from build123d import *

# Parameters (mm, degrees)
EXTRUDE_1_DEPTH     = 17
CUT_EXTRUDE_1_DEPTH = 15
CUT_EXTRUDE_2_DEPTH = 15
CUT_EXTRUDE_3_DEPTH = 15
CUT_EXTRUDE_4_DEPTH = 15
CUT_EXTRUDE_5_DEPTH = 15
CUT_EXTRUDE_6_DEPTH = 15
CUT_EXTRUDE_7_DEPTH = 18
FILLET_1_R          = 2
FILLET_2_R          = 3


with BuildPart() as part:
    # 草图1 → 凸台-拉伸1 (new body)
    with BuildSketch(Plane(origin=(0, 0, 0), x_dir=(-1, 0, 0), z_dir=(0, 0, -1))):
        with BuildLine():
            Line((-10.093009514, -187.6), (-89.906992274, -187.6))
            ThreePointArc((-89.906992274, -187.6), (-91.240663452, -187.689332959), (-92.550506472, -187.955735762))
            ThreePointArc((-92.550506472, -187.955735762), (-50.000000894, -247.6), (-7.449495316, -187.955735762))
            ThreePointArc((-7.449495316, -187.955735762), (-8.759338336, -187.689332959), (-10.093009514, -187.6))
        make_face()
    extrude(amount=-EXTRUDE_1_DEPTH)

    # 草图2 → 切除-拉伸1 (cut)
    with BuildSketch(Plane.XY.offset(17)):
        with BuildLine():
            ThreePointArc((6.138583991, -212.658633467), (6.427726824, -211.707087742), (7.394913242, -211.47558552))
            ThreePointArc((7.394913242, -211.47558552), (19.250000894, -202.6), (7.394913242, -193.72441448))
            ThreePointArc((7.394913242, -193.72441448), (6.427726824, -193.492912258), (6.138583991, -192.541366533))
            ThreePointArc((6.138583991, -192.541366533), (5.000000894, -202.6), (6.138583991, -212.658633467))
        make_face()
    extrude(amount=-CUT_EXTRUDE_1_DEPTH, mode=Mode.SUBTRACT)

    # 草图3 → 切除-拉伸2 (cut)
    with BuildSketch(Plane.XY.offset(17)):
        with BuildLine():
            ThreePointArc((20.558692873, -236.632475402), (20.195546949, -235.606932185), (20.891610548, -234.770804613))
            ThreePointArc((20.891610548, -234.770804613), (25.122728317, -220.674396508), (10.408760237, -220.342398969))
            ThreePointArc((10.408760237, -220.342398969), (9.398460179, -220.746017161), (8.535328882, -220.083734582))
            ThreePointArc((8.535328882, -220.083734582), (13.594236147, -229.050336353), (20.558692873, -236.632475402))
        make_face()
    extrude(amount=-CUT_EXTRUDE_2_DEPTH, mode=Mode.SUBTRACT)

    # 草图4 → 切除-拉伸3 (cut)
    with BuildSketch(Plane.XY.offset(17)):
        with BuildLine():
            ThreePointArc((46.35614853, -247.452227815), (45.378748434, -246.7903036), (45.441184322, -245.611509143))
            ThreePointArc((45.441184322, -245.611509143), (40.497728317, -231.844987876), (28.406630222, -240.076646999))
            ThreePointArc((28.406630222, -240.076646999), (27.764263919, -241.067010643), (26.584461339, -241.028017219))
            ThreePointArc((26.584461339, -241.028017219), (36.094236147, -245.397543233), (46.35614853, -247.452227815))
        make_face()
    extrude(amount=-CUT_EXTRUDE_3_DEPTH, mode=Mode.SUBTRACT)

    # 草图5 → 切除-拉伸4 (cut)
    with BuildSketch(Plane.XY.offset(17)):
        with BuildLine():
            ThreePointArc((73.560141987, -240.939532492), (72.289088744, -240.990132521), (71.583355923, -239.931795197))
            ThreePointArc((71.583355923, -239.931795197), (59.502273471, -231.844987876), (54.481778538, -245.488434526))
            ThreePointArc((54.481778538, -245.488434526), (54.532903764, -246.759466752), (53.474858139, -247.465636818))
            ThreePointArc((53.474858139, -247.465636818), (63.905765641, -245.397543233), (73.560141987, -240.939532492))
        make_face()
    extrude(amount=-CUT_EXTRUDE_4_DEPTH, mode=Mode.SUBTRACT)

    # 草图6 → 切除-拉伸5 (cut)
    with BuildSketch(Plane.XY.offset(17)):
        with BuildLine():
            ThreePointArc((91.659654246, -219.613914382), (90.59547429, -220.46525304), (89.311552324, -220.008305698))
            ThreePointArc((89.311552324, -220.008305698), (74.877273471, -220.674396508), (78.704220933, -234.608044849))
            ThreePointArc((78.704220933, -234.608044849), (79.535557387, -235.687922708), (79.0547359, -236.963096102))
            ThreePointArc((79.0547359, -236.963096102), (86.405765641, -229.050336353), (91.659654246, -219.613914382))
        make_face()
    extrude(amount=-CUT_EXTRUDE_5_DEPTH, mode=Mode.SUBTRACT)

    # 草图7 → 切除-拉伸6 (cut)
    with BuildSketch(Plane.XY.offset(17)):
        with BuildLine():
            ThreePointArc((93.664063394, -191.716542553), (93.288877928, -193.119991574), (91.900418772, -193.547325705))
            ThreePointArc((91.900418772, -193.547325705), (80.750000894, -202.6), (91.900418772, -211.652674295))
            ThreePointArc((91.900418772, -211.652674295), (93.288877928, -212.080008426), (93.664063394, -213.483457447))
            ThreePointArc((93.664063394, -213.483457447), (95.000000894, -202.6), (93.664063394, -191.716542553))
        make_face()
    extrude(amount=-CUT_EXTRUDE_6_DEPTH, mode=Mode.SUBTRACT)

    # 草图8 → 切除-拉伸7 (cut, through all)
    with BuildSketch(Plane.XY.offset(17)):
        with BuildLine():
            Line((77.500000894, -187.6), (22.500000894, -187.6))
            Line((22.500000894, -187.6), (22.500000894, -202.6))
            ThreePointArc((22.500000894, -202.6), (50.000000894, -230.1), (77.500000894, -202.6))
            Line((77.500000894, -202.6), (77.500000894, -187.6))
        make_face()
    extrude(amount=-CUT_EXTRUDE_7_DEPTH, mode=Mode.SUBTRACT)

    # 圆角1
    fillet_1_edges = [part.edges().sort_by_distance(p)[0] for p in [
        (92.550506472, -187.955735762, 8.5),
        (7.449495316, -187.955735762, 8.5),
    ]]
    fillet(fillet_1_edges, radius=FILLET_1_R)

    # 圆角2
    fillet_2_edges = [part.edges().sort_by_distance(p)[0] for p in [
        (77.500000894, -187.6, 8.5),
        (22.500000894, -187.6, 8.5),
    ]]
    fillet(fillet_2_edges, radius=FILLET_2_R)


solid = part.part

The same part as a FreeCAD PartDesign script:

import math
import FreeCAD as App
import Part
import Sketcher
from FreeCAD import Vector
Q = App.Units.Quantity


def edges_at(feature, points):
    """Names of the edges that pass closest to the given points."""
    edges = feature.Shape.Edges
    near = lambda p: min(range(len(edges)), key=lambda i: edges[i].distToShape(Part.Vertex(*p))[0])
    return sorted({f"Edge{near(p) + 1}" for p in points})

doc = App.newDocument("Part")
body = doc.addObject("PartDesign::Body", "Body")

sketch1 = body.newObject("Sketcher::SketchObject", "Sketch")
sketch1.AttachmentSupport = (doc.getObject("XY_Plane"), [""])
sketch1.MapMode = "FlatFace"
sketch1.addGeometry(Part.LineSegment(Vector(10.09301, -187.6, 0), Vector(89.906992, -187.6, 0)), False)
sketch1.addGeometry(Part.ArcOfCircle(Part.Circle(Vector(89.906992, -197.6, 0), Vector(0, 0, 1), 10), math.radians(74.671582), math.radians(90)), False)
sketch1.addGeometry(Part.ArcOfCircle(Part.Circle(Vector(50.000001, -202.6, 0), Vector(0, 0, 1), 45), math.radians(161.008487), math.radians(378.991513)), False)
sketch1.addGeometry(Part.ArcOfCircle(Part.Circle(Vector(10.09301, -197.6, 0), Vector(0, 0, 1), 10), math.radians(90), math.radians(105.328418)), False)
sketch1.addConstraint(Sketcher.Constraint("Tangent", 0, 2, 1, 2))
sketch1.addConstraint(Sketcher.Constraint("Coincident", 1, 1, 2, 2))
sketch1.addConstraint(Sketcher.Constraint("Coincident", 2, 1, 3, 2))
sketch1.addConstraint(Sketcher.Constraint("Tangent", 3, 1, 0, 1))
sketch1.addConstraint(Sketcher.Constraint("Horizontal", 0))
sketch1.addConstraint(Sketcher.Constraint("Equal", 1, 3))
sketch1.addConstraint(Sketcher.Constraint("Horizontal", 1, 1, 2, 1))
sketch1.addConstraint(Sketcher.Constraint("Radius", 1, Q("10 mm")))
sketch1.addConstraint(Sketcher.Constraint("Radius", 2, Q("45 mm")))
sketch1.addConstraint(Sketcher.Constraint("DistanceX", -1, 1, 2, 3, Q("50.000001 mm")))
sketch1.addConstraint(Sketcher.Constraint("DistanceY", 2, 3, 1, 3, Q("5 mm")))
sketch1.addConstraint(Sketcher.Constraint("DistanceY", 1, 3, -1, 1, Q("197.6 mm")))
sketch1.addConstraint(Sketcher.Constraint("DistanceX", 0, 1, 0, 2, Q("79.813983 mm")))
pad1 = body.newObject("PartDesign::Pad", "Pad")
pad1.Profile = sketch1
pad1.Length = 17

sketch2 = body.newObject("Sketcher::SketchObject", "Sketch001")
sketch2.AttachmentSupport = (doc.getObject("XY_Plane"), [""])
sketch2.MapMode = "FlatFace"
sketch2.AttachmentOffset = App.Placement(Vector(0, 0, 17), App.Rotation())
sketch2.addGeometry(Part.ArcOfCircle(Part.Circle(Vector(7.113282, -212.435108, 0), Vector(0, 0, 1), 1), math.radians(73.642422), math.radians(192.916169)), False)
sketch2.addGeometry(Part.ArcOfCircle(Part.Circle(Vector(10.000001, -202.6, 0), Vector(0, 0, 1), 9.25), math.radians(-106.357578), math.radians(106.357578)), False)
sketch2.addGeometry(Part.ArcOfCircle(Part.Circle(Vector(7.113282, -192.764892, 0), Vector(0, 0, 1), 1), math.radians(167.083831), math.radians(286.357578)), False)
sketch2.addGeometry(Part.ArcOfCircle(Part.Circle(Vector(50.000001, -202.6, 0), Vector(0, 0, 1), 45), math.radians(167.083831), math.radians(192.916169)), False)
sketch2.addConstraint(Sketcher.Constraint("Tangent", 0, 1, 1, 1))
sketch2.addConstraint(Sketcher.Constraint("Tangent", 1, 2, 2, 2))
sketch2.addConstraint(Sketcher.Constraint("Tangent", 2, 1, 3, 1))
sketch2.addConstraint(Sketcher.Constraint("Tangent", 3, 2, 0, 2))
sketch2.addConstraint(Sketcher.Constraint("Equal", 0, 2))
sketch2.addConstraint(Sketcher.Constraint("Horizontal", 1, 3, 3, 3))
sketch2.addConstraint(Sketcher.Constraint("Radius", 0, Q("1 mm")))
sketch2.addConstraint(Sketcher.Constraint("Radius", 3, Q("45 mm")))
sketch2.addConstraint(Sketcher.Constraint("Radius", 1, Q("9.25 mm")))
sketch2.addConstraint(Sketcher.Constraint("DistanceX", -1, 1, 1, 3, Q("10.000001 mm")))
sketch2.addConstraint(Sketcher.Constraint("DistanceX", -1, 1, 3, 3, Q("50.000001 mm")))
sketch2.addConstraint(Sketcher.Constraint("DistanceY", 1, 3, -1, 1, Q("202.6 mm")))
pocket1 = body.newObject("PartDesign::Pocket", "Pocket")
pocket1.Profile = sketch2
pocket1.Length = 15

sketch3 = body.newObject("Sketcher::SketchObject", "Sketch002")
sketch3.AttachmentSupport = (doc.getObject("XY_Plane"), [""])
sketch3.MapMode = "FlatFace"
sketch3.AttachmentOffset = App.Placement(Vector(0, 0, 17), App.Rotation())
sketch3.addGeometry(Part.ArcOfCircle(Part.Circle(Vector(21.278369, -235.80057, 0), Vector(0, 0, 1), 1.1), math.radians(110.58514), math.radians(229.137097)), False)
sketch3.addGeometry(Part.ArcOfCircle(Part.Circle(Vector(17.639321, -226.11141, 0), Vector(0, 0, 1), 9.25), math.radians(-69.41486), math.radians(141.41486)), False)
sketch3.addGeometry(Part.ArcOfCircle(Part.Circle(Vector(9.54891, -219.656354, 0), Vector(0, 0, 1), 1.1), math.radians(-157.137097), math.radians(-38.58514)), False)
sketch3.addGeometry(Part.ArcOfCircle(Part.Circle(Vector(50.000001, -202.6, 0), Vector(0, 0, 1), 45), math.radians(-157.137097), math.radians(-130.862903)), False)
sketch3.addConstraint(Sketcher.Constraint("Tangent", 0, 1, 1, 1))
sketch3.addConstraint(Sketcher.Constraint("Tangent", 1, 2, 2, 2))
sketch3.addConstraint(Sketcher.Constraint("Tangent", 2, 1, 3, 1))
sketch3.addConstraint(Sketcher.Constraint("Tangent", 3, 2, 0, 2))
sketch3.addConstraint(Sketcher.Constraint("Equal", 0, 2))
sketch3.addConstraint(Sketcher.Constraint("Radius", 3, Q("45 mm")))
sketch3.addConstraint(Sketcher.Constraint("Radius", 0, Q("1.1 mm")))
sketch3.addConstraint(Sketcher.Constraint("Radius", 1, Q("9.25 mm")))
sketch3.addConstraint(Sketcher.Constraint("DistanceX", -1, 1, 3, 3, Q("50.000001 mm")))
sketch3.addConstraint(Sketcher.Constraint("DistanceY", 3, 3, -1, 1, Q("202.6 mm")))
sketch3.addConstraint(Sketcher.Constraint("DistanceY", 1, 2, -1, 1, Q("220.342399 mm")))
sketch3.addConstraint(Sketcher.Constraint("DistanceX", 2, 3, 0, 1, Q("11.342701 mm")))
pocket2 = body.newObject("PartDesign::Pocket", "Pocket001")
pocket2.Profile = sketch3
pocket2.Length = 15

sketch4 = body.newObject("Sketcher::SketchObject", "Sketch003")
sketch4.AttachmentSupport = (doc.getObject("XY_Plane"), [""])
sketch4.MapMode = "FlatFace"
sketch4.AttachmentOffset = App.Placement(Vector(0, 0, 17), App.Rotation())
sketch4.addGeometry(Part.ArcOfCircle(Part.Circle(Vector(46.453318, -246.256168, 0), Vector(0, 0, 1), 1.2), math.radians(147.505676), math.radians(265.355418)), False)
sketch4.addGeometry(Part.ArcOfCircle(Part.Circle(Vector(37.639321, -240.642261, 0), Vector(0, 0, 1), 9.25), math.radians(-32.494324), math.radians(176.494324)), False)
sketch4.addGeometry(Part.ArcOfCircle(Part.Circle(Vector(27.208876, -240.00327, 0), Vector(0, 0, 1), 1.2), math.radians(-121.355418), math.radians(-3.505676)), False)
sketch4.addGeometry(Part.ArcOfCircle(Part.Circle(Vector(50.000001, -202.6, 0), Vector(0, 0, 1), 45), math.radians(-121.355418), math.radians(-94.644582)), False)
sketch4.addConstraint(Sketcher.Constraint("Tangent", 0, 1, 1, 1))
sketch4.addConstraint(Sketcher.Constraint("Tangent", 1, 2, 2, 2))
sketch4.addConstraint(Sketcher.Constraint("Tangent", 2, 1, 3, 1))
sketch4.addConstraint(Sketcher.Constraint("Tangent", 3, 2, 0, 2))
sketch4.addConstraint(Sketcher.Constraint("Equal", 0, 2))
sketch4.addConstraint(Sketcher.Constraint("Radius", 3, Q("45 mm")))
sketch4.addConstraint(Sketcher.Constraint("Radius", 0, Q("1.2 mm")))
sketch4.addConstraint(Sketcher.Constraint("Radius", 1, Q("9.25 mm")))
sketch4.addConstraint(Sketcher.Constraint("DistanceX", -1, 1, 3, 3, Q("50.000001 mm")))
sketch4.addConstraint(Sketcher.Constraint("DistanceY", 3, 3, -1, 1, Q("202.6 mm")))
sketch4.addConstraint(Sketcher.Constraint("DistanceY", 0, 3, 2, 3, Q("6.252898 mm")))
sketch4.addConstraint(Sketcher.Constraint("DistanceY", 0, 3, -1, 1, Q("246.256168 mm")))
pocket3 = body.newObject("PartDesign::Pocket", "Pocket002")
pocket3.Profile = sketch4
pocket3.Length = 15

sketch5 = body.newObject("Sketcher::SketchObject", "Sketch004")
sketch5.AttachmentSupport = (doc.getObject("XY_Plane"), [""])
sketch5.MapMode = "FlatFace"
sketch5.AttachmentOffset = App.Placement(Vector(0, 0, 17), App.Rotation())
sketch5.addGeometry(Part.ArcOfCircle(Part.Circle(Vector(72.879516, -239.831946, 0), Vector(0, 0, 1), 1.3), math.radians(-175.59494), math.radians(-58.428734)), False)
sketch5.addGeometry(Part.ArcOfCircle(Part.Circle(Vector(62.360681, -240.642261, 0), Vector(0, 0, 1), 9.25), math.radians(4.40506), math.radians(211.59494)), False)
sketch5.addGeometry(Part.ArcOfCircle(Part.Circle(Vector(53.374473, -246.169518, 0), Vector(0, 0, 1), 1.3), math.radians(-85.571266), math.radians(31.59494)), False)
sketch5.addGeometry(Part.ArcOfCircle(Part.Circle(Vector(50.000001, -202.6, 0), Vector(0, 0, 1), 45), math.radians(-85.571266), math.radians(-58.428734)), False)
sketch5.addConstraint(Sketcher.Constraint("Tangent", 0, 1, 1, 1))
sketch5.addConstraint(Sketcher.Constraint("Tangent", 1, 2, 2, 2))
sketch5.addConstraint(Sketcher.Constraint("Tangent", 2, 1, 3, 1))
sketch5.addConstraint(Sketcher.Constraint("Tangent", 3, 2, 0, 2))
sketch5.addConstraint(Sketcher.Constraint("Equal", 0, 2))
sketch5.addConstraint(Sketcher.Constraint("Radius", 3, Q("45 mm")))
sketch5.addConstraint(Sketcher.Constraint("Radius", 0, Q("1.3 mm")))
sketch5.addConstraint(Sketcher.Constraint("Radius", 1, Q("9.25 mm")))
sketch5.addConstraint(Sketcher.Constraint("DistanceX", -1, 1, 3, 3, Q("50.000001 mm")))
sketch5.addConstraint(Sketcher.Constraint("DistanceY", 3, 3, -1, 1, Q("202.6 mm")))
sketch5.addConstraint(Sketcher.Constraint("DistanceX", -1, 1, 1, 3, Q("62.360681 mm")))
sketch5.addConstraint(Sketcher.Constraint("DistanceY", 1, 3, -1, 1, Q("240.642261 mm")))
pocket4 = body.newObject("PartDesign::Pocket", "Pocket003")
pocket4.Profile = sketch5
pocket4.Length = 15

sketch6 = body.newObject("Sketcher::SketchObject", "Sketch005")
sketch6.AttachmentSupport = (doc.getObject("XY_Plane"), [""])
sketch6.MapMode = "FlatFace"
sketch6.AttachmentOffset = App.Placement(Vector(0, 0, 17), App.Rotation())
sketch6.addGeometry(Part.ArcOfCircle(Part.Circle(Vector(90.363576, -219.084593, 0), Vector(0, 0, 1), 1.4), math.radians(-138.715755), math.radians(-22.215236)), False)
sketch6.addGeometry(Part.ArcOfCircle(Part.Circle(Vector(82.360681, -226.11141, 0), Vector(0, 0, 1), 9.25), math.radians(41.284246), math.radians(246.715754)), False)
sketch6.addGeometry(Part.ArcOfCircle(Part.Circle(Vector(78.150811, -235.894022, 0), Vector(0, 0, 1), 1.4), math.radians(-49.784764), math.radians(66.715754)), False)
sketch6.addGeometry(Part.ArcOfCircle(Part.Circle(Vector(50.000001, -202.6, 0), Vector(0, 0, 1), 45), math.radians(-49.784764), math.radians(-22.215236)), False)
sketch6.addConstraint(Sketcher.Constraint("Tangent", 0, 1, 1, 1))
sketch6.addConstraint(Sketcher.Constraint("Tangent", 1, 2, 2, 2))
sketch6.addConstraint(Sketcher.Constraint("Tangent", 2, 1, 3, 1))
sketch6.addConstraint(Sketcher.Constraint("Tangent", 3, 2, 0, 2))
sketch6.addConstraint(Sketcher.Constraint("Equal", 0, 2))
sketch6.addConstraint(Sketcher.Constraint("Radius", 3, Q("45 mm")))
sketch6.addConstraint(Sketcher.Constraint("Radius", 0, Q("1.4 mm")))
sketch6.addConstraint(Sketcher.Constraint("Radius", 1, Q("9.25 mm")))
sketch6.addConstraint(Sketcher.Constraint("DistanceX", -1, 1, 3, 3, Q("50.000001 mm")))
sketch6.addConstraint(Sketcher.Constraint("DistanceY", 3, 3, -1, 1, Q("202.6 mm")))
sketch6.addConstraint(Sketcher.Constraint("DistanceX", 0, 1, 3, 2, Q("2.348102 mm")))
sketch6.addConstraint(Sketcher.Constraint("DistanceX", -1, 1, 1, 3, Q("82.360681 mm")))
pocket5 = body.newObject("PartDesign::Pocket", "Pocket004")
pocket5.Profile = sketch6
pocket5.Length = 15

sketch7 = body.newObject("Sketcher::SketchObject", "Sketch006")
sketch7.AttachmentSupport = (doc.getObject("XY_Plane"), [""])
sketch7.MapMode = "FlatFace"
sketch7.AttachmentOffset = App.Placement(Vector(0, 0, 17), App.Rotation())
sketch7.addGeometry(Part.ArcOfCircle(Part.Circle(Vector(92.208595, -192.079324, 0), Vector(0, 0, 1), 1.5), math.radians(-101.855877), math.radians(13.996027)), False)
sketch7.addGeometry(Part.ArcOfCircle(Part.Circle(Vector(90.000001, -202.6, 0), Vector(0, 0, 1), 9.25), math.radians(78.144123), math.radians(281.855877)), False)
sketch7.addGeometry(Part.ArcOfCircle(Part.Circle(Vector(92.208595, -213.120676, 0), Vector(0, 0, 1), 1.5), math.radians(-13.996027), math.radians(101.855877)), False)
sketch7.addGeometry(Part.ArcOfCircle(Part.Circle(Vector(50.000001, -202.6, 0), Vector(0, 0, 1), 45), math.radians(-13.996027), math.radians(13.996027)), False)
sketch7.addConstraint(Sketcher.Constraint("Tangent", 0, 1, 1, 1))
sketch7.addConstraint(Sketcher.Constraint("Tangent", 1, 2, 2, 2))
sketch7.addConstraint(Sketcher.Constraint("Tangent", 2, 1, 3, 1))
sketch7.addConstraint(Sketcher.Constraint("Tangent", 3, 2, 0, 2))
sketch7.addConstraint(Sketcher.Constraint("Equal", 0, 2))
sketch7.addConstraint(Sketcher.Constraint("Horizontal", 1, 3, 3, 3))
sketch7.addConstraint(Sketcher.Constraint("Radius", 3, Q("45 mm")))
sketch7.addConstraint(Sketcher.Constraint("Radius", 0, Q("1.5 mm")))
sketch7.addConstraint(Sketcher.Constraint("Radius", 1, Q("9.25 mm")))
sketch7.addConstraint(Sketcher.Constraint("DistanceX", -1, 1, 1, 3, Q("90.000001 mm")))
sketch7.addConstraint(Sketcher.Constraint("DistanceX", -1, 1, 3, 3, Q("50.000001 mm")))
sketch7.addConstraint(Sketcher.Constraint("DistanceY", 1, 3, -1, 1, Q("202.6 mm")))
pocket6 = body.newObject("PartDesign::Pocket", "Pocket005")
pocket6.Profile = sketch7
pocket6.Length = 15

sketch8 = body.newObject("Sketcher::SketchObject", "Sketch007")
sketch8.AttachmentSupport = (doc.getObject("XY_Plane"), [""])
sketch8.MapMode = "FlatFace"
sketch8.AttachmentOffset = App.Placement(Vector(0, 0, 17), App.Rotation())
sketch8.addGeometry(Part.LineSegment(Vector(77.500001, -187.6, 0), Vector(22.500001, -187.6, 0)), False)
sketch8.addGeometry(Part.LineSegment(Vector(22.500001, -187.6, 0), Vector(22.500001, -202.6, 0)), False)
sketch8.addGeometry(Part.ArcOfCircle(Part.Circle(Vector(50.000001, -202.6, 0), Vector(0, 0, 1), 27.5), math.radians(180), math.radians(360)), False)
sketch8.addGeometry(Part.LineSegment(Vector(77.500001, -202.6, 0), Vector(77.500001, -187.6, 0)), False)
sketch8.addConstraint(Sketcher.Constraint("Coincident", 0, 2, 1, 1))
sketch8.addConstraint(Sketcher.Constraint("Tangent", 1, 2, 2, 1))
sketch8.addConstraint(Sketcher.Constraint("Tangent", 2, 2, 3, 1))
sketch8.addConstraint(Sketcher.Constraint("Coincident", 3, 2, 0, 1))
sketch8.addConstraint(Sketcher.Constraint("Horizontal", 0))
sketch8.addConstraint(Sketcher.Constraint("Vertical", 1))
sketch8.addConstraint(Sketcher.Constraint("Vertical", 3))
sketch8.addConstraint(Sketcher.Constraint("Radius", 2, Q("27.5 mm")))
sketch8.addConstraint(Sketcher.Constraint("DistanceY", 1, 2, 1, 1, Q("15 mm")))
sketch8.addConstraint(Sketcher.Constraint("DistanceX", -1, 1, 2, 3, Q("50.000001 mm")))
sketch8.addConstraint(Sketcher.Constraint("DistanceY", 2, 3, -1, 1, Q("202.6 mm")))
pocket7 = body.newObject("PartDesign::Pocket", "Pocket006")
pocket7.Profile = sketch8
pocket7.Type = "ThroughAll"
doc.recompute()

fillet = body.newObject("PartDesign::Fillet", "Fillet")
fillet.Base = (pocket7, edges_at(pocket7, [(92.551, -187.956, 8.5), (7.449, -187.956, 8.5)]))
fillet.Radius = 2
doc.recompute()

fillet2 = body.newObject("PartDesign::Fillet", "Fillet001")
fillet2.Base = (fillet, edges_at(fillet, [(77.5, -187.6, 8.5), (22.5, -187.6, 8.5)]))
fillet2.Radius = 3

doc.recompute()
